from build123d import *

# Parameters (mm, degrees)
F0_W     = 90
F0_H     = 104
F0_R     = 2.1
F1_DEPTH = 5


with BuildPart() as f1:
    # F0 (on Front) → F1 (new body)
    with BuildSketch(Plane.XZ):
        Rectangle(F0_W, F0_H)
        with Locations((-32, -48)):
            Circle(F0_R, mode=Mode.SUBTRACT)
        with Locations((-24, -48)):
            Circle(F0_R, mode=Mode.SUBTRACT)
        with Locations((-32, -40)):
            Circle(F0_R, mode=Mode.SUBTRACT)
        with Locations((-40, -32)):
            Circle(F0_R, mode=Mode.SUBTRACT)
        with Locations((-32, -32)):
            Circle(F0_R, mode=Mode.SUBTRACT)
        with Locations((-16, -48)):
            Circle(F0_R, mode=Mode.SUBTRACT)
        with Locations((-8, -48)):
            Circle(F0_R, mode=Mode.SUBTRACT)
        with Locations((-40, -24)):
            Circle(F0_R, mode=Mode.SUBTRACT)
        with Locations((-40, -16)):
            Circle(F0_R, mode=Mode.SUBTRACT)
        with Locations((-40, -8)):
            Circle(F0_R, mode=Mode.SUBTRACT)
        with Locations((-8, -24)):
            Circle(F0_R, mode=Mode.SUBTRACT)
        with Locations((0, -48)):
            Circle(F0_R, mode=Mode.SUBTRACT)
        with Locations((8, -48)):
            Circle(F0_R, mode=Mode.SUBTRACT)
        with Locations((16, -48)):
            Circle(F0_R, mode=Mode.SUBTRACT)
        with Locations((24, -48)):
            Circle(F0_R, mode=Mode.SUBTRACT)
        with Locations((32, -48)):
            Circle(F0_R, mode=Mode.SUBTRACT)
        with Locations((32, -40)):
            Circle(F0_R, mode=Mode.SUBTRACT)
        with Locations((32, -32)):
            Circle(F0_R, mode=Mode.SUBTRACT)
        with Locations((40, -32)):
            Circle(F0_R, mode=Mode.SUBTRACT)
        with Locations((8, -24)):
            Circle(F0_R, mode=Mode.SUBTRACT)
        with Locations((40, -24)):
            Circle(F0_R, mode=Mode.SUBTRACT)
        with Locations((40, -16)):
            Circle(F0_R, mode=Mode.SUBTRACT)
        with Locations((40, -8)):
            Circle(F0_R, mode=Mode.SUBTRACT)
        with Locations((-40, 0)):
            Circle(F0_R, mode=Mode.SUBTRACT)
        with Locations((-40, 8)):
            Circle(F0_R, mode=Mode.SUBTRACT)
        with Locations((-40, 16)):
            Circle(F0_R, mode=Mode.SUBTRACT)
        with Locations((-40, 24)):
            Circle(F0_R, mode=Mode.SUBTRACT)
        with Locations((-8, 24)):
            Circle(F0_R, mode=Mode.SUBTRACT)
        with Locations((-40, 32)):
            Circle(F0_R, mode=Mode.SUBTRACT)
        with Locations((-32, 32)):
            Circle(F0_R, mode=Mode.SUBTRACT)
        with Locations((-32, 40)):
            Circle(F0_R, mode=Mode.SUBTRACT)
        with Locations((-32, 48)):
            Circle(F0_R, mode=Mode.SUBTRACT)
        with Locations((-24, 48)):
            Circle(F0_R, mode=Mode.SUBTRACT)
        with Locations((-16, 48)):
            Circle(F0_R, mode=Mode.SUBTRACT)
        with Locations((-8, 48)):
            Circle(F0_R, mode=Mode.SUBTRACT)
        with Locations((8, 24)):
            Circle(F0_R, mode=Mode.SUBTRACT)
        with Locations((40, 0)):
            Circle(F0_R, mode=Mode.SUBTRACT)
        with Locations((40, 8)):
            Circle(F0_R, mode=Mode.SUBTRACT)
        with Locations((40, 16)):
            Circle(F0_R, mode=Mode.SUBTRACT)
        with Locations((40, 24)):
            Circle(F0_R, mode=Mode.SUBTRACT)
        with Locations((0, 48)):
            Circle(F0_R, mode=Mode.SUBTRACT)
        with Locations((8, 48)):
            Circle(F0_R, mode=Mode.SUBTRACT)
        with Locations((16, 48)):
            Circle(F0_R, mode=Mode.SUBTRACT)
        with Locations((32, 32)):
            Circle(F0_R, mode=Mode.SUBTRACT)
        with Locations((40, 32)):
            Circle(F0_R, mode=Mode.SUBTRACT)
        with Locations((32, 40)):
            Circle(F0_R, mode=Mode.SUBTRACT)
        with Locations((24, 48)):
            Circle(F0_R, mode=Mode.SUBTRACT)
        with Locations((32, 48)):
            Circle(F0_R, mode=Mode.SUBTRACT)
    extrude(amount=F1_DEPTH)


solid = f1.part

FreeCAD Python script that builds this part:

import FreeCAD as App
import Part
import Sketcher
from FreeCAD import Vector


def add_polygon(sketch, points):
    """Adds a closed chain of lines whose ends are joined by coincident constraints."""
    first, n = sketch.GeometryCount, len(points)
    for a, b in zip(points, points[1:] + points[:1]):
        sketch.addGeometry(Part.LineSegment(App.Vector(*a, 0), App.Vector(*b, 0)), False)
    for i in range(n):
        sketch.addConstraint(Sketcher.Constraint("Coincident", first + i, 2, first + (i + 1) % n, 1))

doc = App.newDocument("Part")
params = doc.addObject("Spreadsheet::Sheet", "Params")
for row, (alias, value) in enumerate([
    ("sketch1_diameter", "4.2 mm"),
    ("sketch1_width", "90 mm"),
    ("sketch1_height", "104 mm"),
    ("pad1_length", "5 mm"),
], start=1):
    params.set(f"A{row}", alias)
    params.set(f"B{row}", "=" + value)
    params.setAlias(f"B{row}", alias)

body = doc.addObject("PartDesign::Body", "Body")

sketch1 = body.newObject("Sketcher::SketchObject", "Sketch")
sketch1.AttachmentSupport = (doc.getObject("XZ_Plane"), [""])
sketch1.MapMode = "FlatFace"
add_polygon(sketch1, [(-45, 52), (-45, -52), (45, -52), (45, 52)])
sketch1.addGeometry(Part.Circle(Vector(-32, -48, 0), Vector(0, 0, 1), 2.1), False)
sketch1.addGeometry(Part.Circle(Vector(-32, -40, 0), Vector(0, 0, 1), 2.1), False)
sketch1.addGeometry(Part.Circle(Vector(-24, -48, 0), Vector(0, 0, 1), 2.1), False)
sketch1.addGeometry(Part.Circle(Vector(-40, -32, 0), Vector(0, 0, 1), 2.1), False)
sketch1.addGeometry(Part.Circle(Vector(-32, -32, 0), Vector(0, 0, 1), 2.1), False)
sketch1.addGeometry(Part.Circle(Vector(-16, -48, 0), Vector(0, 0, 1), 2.1), False)
sketch1.addGeometry(Part.Circle(Vector(-8, -48, 0), Vector(0, 0, 1), 2.1), False)
sketch1.addGeometry(Part.Circle(Vector(-40, -24, 0), Vector(0, 0, 1), 2.1), False)
sketch1.addGeometry(Part.Circle(Vector(-40, -16, 0), Vector(0, 0, 1), 2.1), False)
sketch1.addGeometry(Part.Circle(Vector(-40, -8, 0), Vector(0, 0, 1), 2.1), False)
sketch1.addGeometry(Part.Circle(Vector(-8, -24, 0), Vector(0, 0, 1), 2.1), False)
sketch1.addGeometry(Part.Circle(Vector(0, -48, 0), Vector(0, 0, 1), 2.1), False)
sketch1.addGeometry(Part.Circle(Vector(8, -48, 0), Vector(0, 0, 1), 2.1), False)
sketch1.addGeometry(Part.Circle(Vector(16, -48, 0), Vector(0, 0, 1), 2.1), False)
sketch1.addGeometry(Part.Circle(Vector(24, -48, 0), Vector(0, 0, 1), 2.1), False)
sketch1.addGeometry(Part.Circle(Vector(32, -48, 0), Vector(0, 0, 1), 2.1), False)
sketch1.addGeometry(Part.Circle(Vector(32, -40, 0), Vector(0, 0, 1), 2.1), False)
sketch1.addGeometry(Part.Circle(Vector(32, -32, 0), Vector(0, 0, 1), 2.1), False)
sketch1.addGeometry(Part.Circle(Vector(40, -32, 0), Vector(0, 0, 1), 2.1), False)
sketch1.addGeometry(Part.Circle(Vector(8, -24, 0), Vector(0, 0, 1), 2.1), False)
sketch1.addGeometry(Part.Circle(Vector(40, -24, 0), Vector(0, 0, 1), 2.1), False)
sketch1.addGeometry(Part.Circle(Vector(40, -16, 0), Vector(0, 0, 1), 2.1), False)
sketch1.addGeometry(Part.Circle(Vector(40, -8, 0), Vector(0, 0, 1), 2.1), False)
sketch1.addGeometry(Part.Circle(Vector(-40, 0, 0), Vector(0, 0, 1), 2.1), False)
sketch1.addGeometry(Part.Circle(Vector(-40, 8, 0), Vector(0, 0, 1), 2.1), False)
sketch1.addGeometry(Part.Circle(Vector(-40, 16, 0), Vector(0, 0, 1), 2.1), False)
sketch1.addGeometry(Part.Circle(Vector(-40, 24, 0), Vector(0, 0, 1), 2.1), False)
sketch1.addGeometry(Part.Circle(Vector(-8, 24, 0), Vector(0, 0, 1), 2.1), False)
sketch1.addGeometry(Part.Circle(Vector(-40, 32, 0), Vector(0, 0, 1), 2.1), False)
sketch1.addGeometry(Part.Circle(Vector(-32, 32, 0), Vector(0, 0, 1), 2.1), False)
sketch1.addGeometry(Part.Circle(Vector(-32, 40, 0), Vector(0, 0, 1), 2.1), False)
sketch1.addGeometry(Part.Circle(Vector(-32, 48, 0), Vector(0, 0, 1), 2.1), False)
sketch1.addGeometry(Part.Circle(Vector(-24, 48, 0), Vector(0, 0, 1), 2.1), False)
sketch1.addGeometry(Part.Circle(Vector(-16, 48, 0), Vector(0, 0, 1), 2.1), False)
sketch1.addGeometry(Part.Circle(Vector(-8, 48, 0), Vector(0, 0, 1), 2.1), False)
sketch1.addGeometry(Part.Circle(Vector(8, 24, 0), Vector(0, 0, 1), 2.1), False)
sketch1.addGeometry(Part.Circle(Vector(40, 0, 0), Vector(0, 0, 1), 2.1), False)
sketch1.addGeometry(Part.Circle(Vector(40, 8, 0), Vector(0, 0, 1), 2.1), False)
sketch1.addGeometry(Part.Circle(Vector(40, 16, 0), Vector(0, 0, 1), 2.1), False)
sketch1.addGeometry(Part.Circle(Vector(40, 24, 0), Vector(0, 0, 1), 2.1), False)
sketch1.addGeometry(Part.Circle(Vector(0, 48, 0), Vector(0, 0, 1), 2.1), False)
sketch1.addGeometry(Part.Circle(Vector(8, 48, 0), Vector(0, 0, 1), 2.1), False)
sketch1.addGeometry(Part.Circle(Vector(16, 48, 0), Vector(0, 0, 1), 2.1), False)
sketch1.addGeometry(Part.Circle(Vector(32, 32, 0), Vector(0, 0, 1), 2.1), False)
sketch1.addGeometry(Part.Circle(Vector(40, 32, 0), Vector(0, 0, 1), 2.1), False)
sketch1.addGeometry(Part.Circle(Vector(24, 48, 0), Vector(0, 0, 1), 2.1), False)
sketch1.addGeometry(Part.Circle(Vector(32, 40, 0), Vector(0, 0, 1), 2.1), False)
sketch1.addGeometry(Part.Circle(Vector(32, 48, 0), Vector(0, 0, 1), 2.1), False)
sketch1.addConstraint([
    Sketcher.Constraint("Vertical", 0),
    Sketcher.Constraint("Horizontal", 1),
    Sketcher.Constraint("Vertical", 2),
    Sketcher.Constraint("Horizontal", 3),
    Sketcher.Constraint("Equal", 4, 5),
    Sketcher.Constraint("Equal", 5, 6),
    Sketcher.Constraint("Equal", 6, 7),
    Sketcher.Constraint("Equal", 7, 8),
    Sketcher.Constraint("Equal", 8, 9),
    Sketcher.Constraint("Equal", 9, 10),
    Sketcher.Constraint("Equal", 10, 11),
    Sketcher.Constraint("Equal", 11, 12),
    Sketcher.Constraint("Equal", 12, 13),
    Sketcher.Constraint("Equal", 13, 14),
    Sketcher.Constraint("Equal", 14, 15),
    Sketcher.Constraint("Equal", 15, 16),
    Sketcher.Constraint("Equal", 16, 17),
    Sketcher.Constraint("Equal", 17, 18),
    Sketcher.Constraint("Equal", 18, 19),
    Sketcher.Constraint("Equal", 19, 20),
    Sketcher.Constraint("Equal", 20, 21),
    Sketcher.Constraint("Equal", 21, 22),
    Sketcher.Constraint("Equal", 22, 23),
    Sketcher.Constraint("Equal", 23, 24),
    Sketcher.Constraint("Equal", 24, 25),
    Sketcher.Constraint("Equal", 25, 26),
    Sketcher.Constraint("Equal", 26, 27),
    Sketcher.Constraint("Equal", 27, 28),
    Sketcher.Constraint("Equal", 28, 29),
    Sketcher.Constraint("Equal", 29, 30),
    Sketcher.Constraint("Equal", 30, 31),
    Sketcher.Constraint("Equal", 31, 32),
    Sketcher.Constraint("Equal", 32, 33),
    Sketcher.Constraint("Equal", 33, 34),
    Sketcher.Constraint("Equal", 34, 35),
    Sketcher.Constraint("Equal", 35, 36),
    Sketcher.Constraint("Equal", 36, 37),
    Sketcher.Constraint("Equal", 37, 38),
    Sketcher.Constraint("Equal", 38, 39),
    Sketcher.Constraint("Equal", 39, 40),
    Sketcher.Constraint("Equal", 40, 41),
    Sketcher.Constraint("Equal", 41, 42),
    Sketcher.Constraint("Equal", 42, 43),
    Sketcher.Constraint("Equal", 43, 44),
    Sketcher.Constraint("Equal", 44, 45),
    Sketcher.Constraint("Equal", 45, 46),
    Sketcher.Constraint("Equal", 46, 47),
    Sketcher.Constraint("Equal", 47, 48),
    Sketcher.Constraint("Equal", 48, 49),
    Sketcher.Constraint("Equal", 49, 50),
    Sketcher.Constraint("Equal", 50, 51),
    Sketcher.Constraint("Symmetric", 26, 3, 28, 3, -1, 1),
    Sketcher.Constraint("Symmetric", 25, 3, 29, 3, -1, 1),
    Sketcher.Constraint("Symmetric", 24, 3, 30, 3, -1, 1),
    Sketcher.Constraint("Symmetric", 23, 3, 31, 3, -1, 1),
    Sketcher.Constraint("Symmetric", 22, 3, 32, 3, -1, 1),
    Sketcher.Constraint("Symmetric", 21, 3, 33, 3, -1, 1),
    Sketcher.Constraint("Symmetric", 20, 3, 34, 3, -1, 1),
    Sketcher.Constraint("Symmetric", 19, 3, 35, 3, -1, 1),
    Sketcher.Constraint("Symmetric", 18, 3, 36, 3, -1, 1),
    Sketcher.Constraint("Symmetric", 17, 3, 37, 3, -1, 1),
    Sketcher.Constraint("Symmetric", 16, 3, 38, 3, -1, 1),
    Sketcher.Constraint("Symmetric", 14, 3, 39, 3, -1, 1),
    Sketcher.Constraint("Symmetric", 27, 3, 40, 3, -1, 1),
    Sketcher.Constraint("Symmetric", 13, 3, 41, 3, -1, 1),
    Sketcher.Constraint("Symmetric", 12, 3, 42, 3, -1, 1),
    Sketcher.Constraint("Symmetric", 11, 3, 43, 3, -1, 1),
    Sketcher.Constraint("Symmetric", 15, 3, 44, 3, -1, 1),
    Sketcher.Constraint("Symmetric", 10, 3, 45, 3, -1, 1),
    Sketcher.Constraint("Symmetric", 9, 3, 46, 3, -1, 1),
    Sketcher.Constraint("Symmetric", 8, 3, 47, 3, -1, 1),
    Sketcher.Constraint("Symmetric", 7, 3, 48, 3, -1, 1),
    Sketcher.Constraint("Symmetric", 6, 3, 49, 3, -1, 1),
    Sketcher.Constraint("Symmetric", 5, 3, 50, 3, -1, 1),
    Sketcher.Constraint("Symmetric", 4, 3, 51, 3, -1, 1),
    Sketcher.Constraint("Symmetric", 0, 2, 2, 2, -1, 1),
    Sketcher.Constraint("Symmetric", 10, 3, 16, 3, -2),
    Sketcher.Constraint("Symmetric", 9, 3, 17, 3, -2),
    Sketcher.Constraint("Symmetric", 6, 3, 18, 3, -2),
    Sketcher.Constraint("Symmetric", 4, 3, 19, 3, -2),
    Sketcher.Constraint("Symmetric", 5, 3, 20, 3, -2),
    Sketcher.Constraint("Symmetric", 8, 3, 21, 3, -2),
    Sketcher.Constraint("Symmetric", 7, 3, 22, 3, -2),
    Sketcher.Constraint("Symmetric", 14, 3, 23, 3, -2),
    Sketcher.Constraint("Symmetric", 11, 3, 24, 3, -2),
    Sketcher.Constraint("Symmetric", 12, 3, 25, 3, -2),
    Sketcher.Constraint("Symmetric", 13, 3, 26, 3, -2),
    Sketcher.Constraint("PointOnObject", 15, 3, -2),
    Sketcher.Constraint("PointOnObject", 27, 3, -1),
    Sketcher.Constraint("Horizontal", 4, 3, 6, 3),
    Sketcher.Constraint("Horizontal", 7, 3, 8, 3),
    Sketcher.Constraint("Horizontal", 6, 3, 9, 3),
    Sketcher.Constraint("Horizontal", 9, 3, 10, 3),
    Sketcher.Constraint("Horizontal", 11, 3, 14, 3),
    Sketcher.Constraint("Horizontal", 10, 3, 15, 3),
    Sketcher.Constraint("Vertical", 4, 3, 5, 3),
    Sketcher.Constraint("Vertical", 5, 3, 8, 3),
    Sketcher.Constraint("Vertical", 7, 3, 11, 3),
    Sketcher.Constraint("Vertical", 11, 3, 12, 3),
    Sketcher.Constraint("Vertical", 12, 3, 13, 3),
    Sketcher.Constraint("Vertical", 10, 3, 14, 3),
    Sketcher.Constraint("Vertical", 13, 3, 27, 3),
    Sketcher.Constraint("Diameter", 4, 4.2),
    Sketcher.Constraint("DistanceX", 1, 1, 1, 2, 90.0),
    Sketcher.Constraint("DistanceY", 0, 2, 0, 1, 104.0),
    Sketcher.Constraint("DistanceX", 4, 3, -1, 1, 32.0),
    Sketcher.Constraint("DistanceY", 4, 3, -1, 1, 48.0),
    Sketcher.Constraint("DistanceY", 5, 3, -1, 1, 40.0),
    Sketcher.Constraint("DistanceX", 6, 3, -1, 1, 24.0),
    Sketcher.Constraint("DistanceX", 7, 3, -1, 1, 40.0),
    Sketcher.Constraint("DistanceY", 7, 3, -1, 1, 32.0),
    Sketcher.Constraint("DistanceX", 9, 3, -1, 1, 16.0),
    Sketcher.Constraint("DistanceX", 10, 3, -1, 1, 8.0),
    Sketcher.Constraint("DistanceY", 11, 3, -1, 1, 24.0),
    Sketcher.Constraint("DistanceY", 12, 3, -1, 1, 16.0),
    Sketcher.Constraint("DistanceY", 13, 3, -1, 1, 8.0),
])
sketch1.setExpression("Constraints[106]", "Params.sketch1_diameter")
sketch1.setExpression("Constraints[107]", "Params.sketch1_width")
sketch1.setExpression("Constraints[108]", "Params.sketch1_height")
pad1 = body.newObject("PartDesign::Pad", "Pad")
pad1.Profile = sketch1
pad1.setExpression("Length", "Params.pad1_length")

doc.recompute()
